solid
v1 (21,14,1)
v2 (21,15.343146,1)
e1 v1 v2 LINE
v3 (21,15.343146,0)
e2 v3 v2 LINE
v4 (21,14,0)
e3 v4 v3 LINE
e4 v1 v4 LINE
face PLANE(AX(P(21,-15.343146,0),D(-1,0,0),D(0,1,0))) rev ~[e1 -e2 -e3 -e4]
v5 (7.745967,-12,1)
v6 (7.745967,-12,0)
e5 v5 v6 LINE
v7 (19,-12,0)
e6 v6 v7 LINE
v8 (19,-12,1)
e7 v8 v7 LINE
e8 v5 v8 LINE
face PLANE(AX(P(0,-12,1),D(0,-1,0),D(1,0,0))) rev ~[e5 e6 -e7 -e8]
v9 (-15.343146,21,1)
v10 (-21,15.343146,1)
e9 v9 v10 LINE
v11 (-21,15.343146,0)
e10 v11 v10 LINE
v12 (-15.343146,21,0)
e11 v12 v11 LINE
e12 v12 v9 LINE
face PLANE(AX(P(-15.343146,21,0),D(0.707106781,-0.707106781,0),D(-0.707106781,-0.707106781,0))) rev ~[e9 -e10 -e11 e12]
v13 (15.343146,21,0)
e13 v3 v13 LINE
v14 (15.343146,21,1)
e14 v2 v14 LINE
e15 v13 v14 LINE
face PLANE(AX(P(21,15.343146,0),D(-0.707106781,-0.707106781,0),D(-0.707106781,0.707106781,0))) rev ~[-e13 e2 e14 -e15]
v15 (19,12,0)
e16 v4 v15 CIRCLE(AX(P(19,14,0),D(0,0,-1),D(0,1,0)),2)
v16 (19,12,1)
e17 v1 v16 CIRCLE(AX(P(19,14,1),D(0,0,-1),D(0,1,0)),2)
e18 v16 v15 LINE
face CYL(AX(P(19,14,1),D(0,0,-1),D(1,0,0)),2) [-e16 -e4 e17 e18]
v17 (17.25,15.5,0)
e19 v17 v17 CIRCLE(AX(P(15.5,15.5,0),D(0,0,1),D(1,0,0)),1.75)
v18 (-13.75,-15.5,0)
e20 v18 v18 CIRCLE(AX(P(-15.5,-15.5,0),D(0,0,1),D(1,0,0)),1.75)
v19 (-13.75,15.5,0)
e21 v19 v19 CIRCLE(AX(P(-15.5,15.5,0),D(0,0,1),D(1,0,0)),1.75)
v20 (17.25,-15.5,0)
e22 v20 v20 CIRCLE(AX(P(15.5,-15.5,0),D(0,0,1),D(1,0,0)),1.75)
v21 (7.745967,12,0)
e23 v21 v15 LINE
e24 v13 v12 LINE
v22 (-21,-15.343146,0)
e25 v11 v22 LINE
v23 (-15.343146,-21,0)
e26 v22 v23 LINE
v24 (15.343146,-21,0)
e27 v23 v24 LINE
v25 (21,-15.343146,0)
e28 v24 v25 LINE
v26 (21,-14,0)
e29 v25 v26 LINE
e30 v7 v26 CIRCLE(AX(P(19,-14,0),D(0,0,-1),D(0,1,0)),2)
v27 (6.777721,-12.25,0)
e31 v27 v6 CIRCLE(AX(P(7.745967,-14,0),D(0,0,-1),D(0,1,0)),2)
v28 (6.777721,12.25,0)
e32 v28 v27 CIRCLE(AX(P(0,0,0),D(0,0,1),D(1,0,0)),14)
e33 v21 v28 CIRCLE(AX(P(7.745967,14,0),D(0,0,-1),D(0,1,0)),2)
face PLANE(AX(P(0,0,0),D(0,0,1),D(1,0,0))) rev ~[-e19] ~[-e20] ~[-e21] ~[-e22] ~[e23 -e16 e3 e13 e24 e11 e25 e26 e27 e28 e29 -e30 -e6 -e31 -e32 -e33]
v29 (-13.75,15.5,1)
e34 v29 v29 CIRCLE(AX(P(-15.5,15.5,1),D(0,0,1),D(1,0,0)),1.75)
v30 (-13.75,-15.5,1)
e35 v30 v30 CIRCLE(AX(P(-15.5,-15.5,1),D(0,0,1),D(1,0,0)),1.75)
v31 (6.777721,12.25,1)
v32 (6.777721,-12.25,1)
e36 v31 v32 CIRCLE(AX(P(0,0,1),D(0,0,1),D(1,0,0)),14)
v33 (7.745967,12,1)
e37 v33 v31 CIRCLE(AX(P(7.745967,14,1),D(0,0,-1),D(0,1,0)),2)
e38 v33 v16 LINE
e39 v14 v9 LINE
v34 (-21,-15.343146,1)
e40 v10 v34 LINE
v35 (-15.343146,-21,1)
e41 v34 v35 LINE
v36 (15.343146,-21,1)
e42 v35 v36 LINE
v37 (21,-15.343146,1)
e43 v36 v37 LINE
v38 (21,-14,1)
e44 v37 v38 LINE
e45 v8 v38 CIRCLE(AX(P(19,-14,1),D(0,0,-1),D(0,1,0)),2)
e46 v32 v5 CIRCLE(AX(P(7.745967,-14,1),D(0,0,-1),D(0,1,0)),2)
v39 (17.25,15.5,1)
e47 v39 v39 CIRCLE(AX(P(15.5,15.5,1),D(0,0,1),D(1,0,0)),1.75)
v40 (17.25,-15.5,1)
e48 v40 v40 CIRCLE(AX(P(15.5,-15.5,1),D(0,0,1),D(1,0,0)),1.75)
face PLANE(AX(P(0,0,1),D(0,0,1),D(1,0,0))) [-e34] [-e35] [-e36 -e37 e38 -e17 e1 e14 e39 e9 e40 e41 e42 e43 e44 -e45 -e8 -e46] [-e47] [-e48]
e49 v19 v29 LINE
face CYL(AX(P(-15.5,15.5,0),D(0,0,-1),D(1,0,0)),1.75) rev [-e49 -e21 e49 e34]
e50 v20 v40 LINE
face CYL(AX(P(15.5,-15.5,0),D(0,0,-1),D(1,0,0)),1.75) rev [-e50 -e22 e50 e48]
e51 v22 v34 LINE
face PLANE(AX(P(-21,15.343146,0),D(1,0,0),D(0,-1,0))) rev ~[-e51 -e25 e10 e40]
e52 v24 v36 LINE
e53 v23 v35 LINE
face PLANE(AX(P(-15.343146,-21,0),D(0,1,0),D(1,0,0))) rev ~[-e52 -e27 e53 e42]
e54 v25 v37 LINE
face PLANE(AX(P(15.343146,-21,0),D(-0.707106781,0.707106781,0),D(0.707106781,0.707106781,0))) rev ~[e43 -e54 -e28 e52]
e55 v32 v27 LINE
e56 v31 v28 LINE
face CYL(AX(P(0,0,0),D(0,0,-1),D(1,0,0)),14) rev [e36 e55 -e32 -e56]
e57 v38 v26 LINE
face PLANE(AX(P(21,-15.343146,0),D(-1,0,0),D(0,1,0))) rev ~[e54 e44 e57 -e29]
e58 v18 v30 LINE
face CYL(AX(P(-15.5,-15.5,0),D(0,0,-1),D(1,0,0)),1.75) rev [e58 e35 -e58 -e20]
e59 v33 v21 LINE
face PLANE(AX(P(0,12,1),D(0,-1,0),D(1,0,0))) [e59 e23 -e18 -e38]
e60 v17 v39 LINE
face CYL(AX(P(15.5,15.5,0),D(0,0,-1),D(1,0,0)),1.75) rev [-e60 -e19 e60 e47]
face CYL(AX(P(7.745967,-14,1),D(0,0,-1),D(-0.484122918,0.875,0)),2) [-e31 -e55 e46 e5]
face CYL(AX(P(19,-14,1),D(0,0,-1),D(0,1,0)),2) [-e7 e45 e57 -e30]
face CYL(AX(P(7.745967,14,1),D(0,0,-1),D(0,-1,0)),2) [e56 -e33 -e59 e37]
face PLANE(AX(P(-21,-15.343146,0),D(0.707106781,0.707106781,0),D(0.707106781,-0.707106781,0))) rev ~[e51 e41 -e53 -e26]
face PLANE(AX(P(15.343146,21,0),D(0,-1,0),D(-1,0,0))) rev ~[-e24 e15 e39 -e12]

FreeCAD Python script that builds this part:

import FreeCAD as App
import Part
import Sketcher
from FreeCAD import Vector


def edges_at(feature, points):
    """Names of the edges that pass closest to the given points."""
    edges = feature.Shape.Edges
    near = lambda p: min(range(len(edges)), key=lambda i: edges[i].distToShape(Part.Vertex(*p))[0])
    return sorted({f"Edge{near(p) + 1}" for p in points})


def add_polygon(sketch, points):
    """Adds a closed chain of lines whose ends are joined by coincident constraints."""
    first, n = sketch.GeometryCount, len(points)
    for a, b in zip(points, points[1:] + points[:1]):
        sketch.addGeometry(Part.LineSegment(App.Vector(*a, 0), App.Vector(*b, 0)), False)
    for i in range(n):
        sketch.addConstraint(Sketcher.Constraint("Coincident", first + i, 2, first + (i + 1) % n, 1))

doc = App.newDocument("Part")
params = doc.addObject("Spreadsheet::Sheet", "Params")
for row, (alias, value) in enumerate([
    ("sketch1_diameter", "28 mm"),
    ("sketch1_diameter2", "3.5 mm"),
    ("sketch1_length", "8 mm"),
    ("pad1_length", "1 mm"),
    ("sketch2_width", "21 mm"),
    ("sketch2_height", "24 mm"),
    ("fillet_radius", "2 mm"),
], start=1):
    params.set(f"A{row}", alias)
    params.set(f"B{row}", "=" + value)
    params.setAlias(f"B{row}", alias)

body = doc.addObject("PartDesign::Body", "Body")

# Sketch on XY plane
sketch1 = body.newObject("Sketcher::SketchObject", "Sketch")
sketch1.AttachmentSupport = (doc.getObject("XY_Plane"), [""])
sketch1.MapMode = "FlatFace"
add_polygon(sketch1, [(15.3, 21), (-15.3, 21), (-21, 15.3), (-21, -15.3), (-15.3, -21), (15.3, -21), (21, -15.3), (21, 15.3)])  # lines 0-7
sketch1.addGeometry(Part.Circle(Vector(-15.5, -15.5, 0), Vector(0, 0, 1), 1.8), False)  # 8
sketch1.addGeometry(Part.Circle(Vector(15.5, -15.5, 0), Vector(0, 0, 1), 1.8), False)  # 9
sketch1.addGeometry(Part.Circle(Vector(-15.5, 15.5, 0), Vector(0, 0, 1), 1.8), False)  # 10
sketch1.addGeometry(Part.Circle(Vector(0, 0, 0), Vector(0, 0, 1), 14), False)  # 11
sketch1.addGeometry(Part.Circle(Vector(15.5, 15.5, 0), Vector(0, 0, 1), 1.8), False)  # 12
sketch1.addConstraint([
    Sketcher.Constraint("Horizontal", 0),
    Sketcher.Constraint("Vertical", 2),
    Sketcher.Constraint("Horizontal", 4),
    Sketcher.Constraint("Vertical", 6),
    Sketcher.Constraint("Coincident", 11, 3, -1, 1),
    Sketcher.Constraint("Equal", 8, 9),
    Sketcher.Constraint("Equal", 9, 10),
    Sketcher.Constraint("Equal", 10, 12),
    Sketcher.Constraint("Symmetric", 9, 3, 10, 3, -1, 1),
    Sketcher.Constraint("Symmetric", 8, 3, 12, 3, -1, 1),
    Sketcher.Constraint("Symmetric", 0, 2, 4, 2, -1, 1),
    Sketcher.Constraint("Symmetric", 1, 2, 5, 2, -1, 1),
    Sketcher.Constraint("Symmetric", 8, 3, 9, 3, -2),
    Sketcher.Constraint("Perpendicular", 1, 3),
    Sketcher.Constraint("Perpendicular", 5, 7),
    Sketcher.Constraint("Horizontal", 2, 2, 5, 2),
    Sketcher.Constraint("Horizontal", 1, 2, 6, 2),
    Sketcher.Constraint("Vertical", 0, 2, 3, 2),
    Sketcher.Constraint("Equal", 4, 2),
    Sketcher.Constraint("Diameter", 11, 28.0),
    Sketcher.Constraint("Diameter", 8, 3.5),
    Sketcher.Constraint("Distance", 1, 8.0),
    Sketcher.Constraint("DistanceY", -1, 1, 0, 2, 21.0),
    Sketcher.Constraint("DistanceX", 8, 3, 9, 3, 31.0),
    Sketcher.Constraint("DistanceY", 8, 3, 10, 3, 31.0),
])
sketch1.setExpression("Constraints[27]", "Params.sketch1_diameter")
sketch1.setExpression("Constraints[28]", "Params.sketch1_diameter2")
sketch1.setExpression("Constraints[29]", "Params.sketch1_length")
pad1 = body.newObject("PartDesign::Pad", "Pad")
pad1.Profile = sketch1
pad1.setExpression("Length", "Params.pad1_length")

# Sketch on XY plane
sketch2 = body.newObject("Sketcher::SketchObject", "Sketch001")
sketch2.AttachmentSupport = (doc.getObject("XY_Plane"), [""])
sketch2.MapMode = "FlatFace"
sketch2.AttachmentOffset = App.Placement(Vector(0, 0, 1), App.Rotation())
add_polygon(sketch2, [(0, 12), (0, -12), (21, -12), (21, 12)])  # lines 0-3
sketch2.addConstraint([
    Sketcher.Constraint("Vertical", 0),
    Sketcher.Constraint("Horizontal", 1),
    Sketcher.Constraint("Vertical", 2),
    Sketcher.Constraint("Horizontal", 3),
    Sketcher.Constraint("Symmetric", 0, 2, 3, 2, -1, 1),
    Sketcher.Constraint("DistanceX", 1, 1, 1, 2, 21.0),
    Sketcher.Constraint("DistanceY", 0, 2, 0, 1, 24.0),
])
sketch2.setExpression("Constraints[9]", "Params.sketch2_width")
sketch2.setExpression("Constraints[10]", "Params.sketch2_height")
pocket1 = body.newObject("PartDesign::Pocket", "Pocket")
pocket1.Profile = sketch2
pocket1.Type = "ThroughAll"
doc.recompute()

fillet = body.newObject("PartDesign::Fillet", "Fillet")
fillet.Base = (pocket1, edges_at(pocket1, [
    (7.211, 12, 0.5),
    (21, 12, 0.5),
    (21, -12, 0.5),
    (7.211, -12, 0.5),
]))
fillet.setExpression("Radius", "Params.fillet_radius")

doc.recompute()
